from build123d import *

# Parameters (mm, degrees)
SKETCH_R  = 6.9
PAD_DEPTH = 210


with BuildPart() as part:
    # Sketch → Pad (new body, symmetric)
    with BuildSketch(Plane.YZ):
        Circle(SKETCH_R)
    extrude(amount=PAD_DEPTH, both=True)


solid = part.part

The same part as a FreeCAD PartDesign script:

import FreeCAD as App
import Part
import Sketcher

V = App.Vector

doc = App.newDocument("Part")
body = doc.addObject("PartDesign::Body", "Body")

# Sketch on YZ plane
sketch1 = body.newObject("Sketcher::SketchObject", "Sketch")
sketch1.AttachmentSupport = (doc.getObject("YZ_Plane"), [""])
sketch1.MapMode = "FlatFace"
sketch1.addGeometry(Part.Circle(V(0, 0, 0), V(0, 0, 1), 7), False)
sketch1.addConstraint([
    Sketcher.Constraint("Coincident", 0, 3, -1, 1),
    Sketcher.Constraint("Diameter", 0, 13.8),
])
pad1 = body.newObject("PartDesign::Pad", "Pad")
pad1.Profile = sketch1
pad1.Length = 420
pad1.Midplane = True

doc.recompute()
